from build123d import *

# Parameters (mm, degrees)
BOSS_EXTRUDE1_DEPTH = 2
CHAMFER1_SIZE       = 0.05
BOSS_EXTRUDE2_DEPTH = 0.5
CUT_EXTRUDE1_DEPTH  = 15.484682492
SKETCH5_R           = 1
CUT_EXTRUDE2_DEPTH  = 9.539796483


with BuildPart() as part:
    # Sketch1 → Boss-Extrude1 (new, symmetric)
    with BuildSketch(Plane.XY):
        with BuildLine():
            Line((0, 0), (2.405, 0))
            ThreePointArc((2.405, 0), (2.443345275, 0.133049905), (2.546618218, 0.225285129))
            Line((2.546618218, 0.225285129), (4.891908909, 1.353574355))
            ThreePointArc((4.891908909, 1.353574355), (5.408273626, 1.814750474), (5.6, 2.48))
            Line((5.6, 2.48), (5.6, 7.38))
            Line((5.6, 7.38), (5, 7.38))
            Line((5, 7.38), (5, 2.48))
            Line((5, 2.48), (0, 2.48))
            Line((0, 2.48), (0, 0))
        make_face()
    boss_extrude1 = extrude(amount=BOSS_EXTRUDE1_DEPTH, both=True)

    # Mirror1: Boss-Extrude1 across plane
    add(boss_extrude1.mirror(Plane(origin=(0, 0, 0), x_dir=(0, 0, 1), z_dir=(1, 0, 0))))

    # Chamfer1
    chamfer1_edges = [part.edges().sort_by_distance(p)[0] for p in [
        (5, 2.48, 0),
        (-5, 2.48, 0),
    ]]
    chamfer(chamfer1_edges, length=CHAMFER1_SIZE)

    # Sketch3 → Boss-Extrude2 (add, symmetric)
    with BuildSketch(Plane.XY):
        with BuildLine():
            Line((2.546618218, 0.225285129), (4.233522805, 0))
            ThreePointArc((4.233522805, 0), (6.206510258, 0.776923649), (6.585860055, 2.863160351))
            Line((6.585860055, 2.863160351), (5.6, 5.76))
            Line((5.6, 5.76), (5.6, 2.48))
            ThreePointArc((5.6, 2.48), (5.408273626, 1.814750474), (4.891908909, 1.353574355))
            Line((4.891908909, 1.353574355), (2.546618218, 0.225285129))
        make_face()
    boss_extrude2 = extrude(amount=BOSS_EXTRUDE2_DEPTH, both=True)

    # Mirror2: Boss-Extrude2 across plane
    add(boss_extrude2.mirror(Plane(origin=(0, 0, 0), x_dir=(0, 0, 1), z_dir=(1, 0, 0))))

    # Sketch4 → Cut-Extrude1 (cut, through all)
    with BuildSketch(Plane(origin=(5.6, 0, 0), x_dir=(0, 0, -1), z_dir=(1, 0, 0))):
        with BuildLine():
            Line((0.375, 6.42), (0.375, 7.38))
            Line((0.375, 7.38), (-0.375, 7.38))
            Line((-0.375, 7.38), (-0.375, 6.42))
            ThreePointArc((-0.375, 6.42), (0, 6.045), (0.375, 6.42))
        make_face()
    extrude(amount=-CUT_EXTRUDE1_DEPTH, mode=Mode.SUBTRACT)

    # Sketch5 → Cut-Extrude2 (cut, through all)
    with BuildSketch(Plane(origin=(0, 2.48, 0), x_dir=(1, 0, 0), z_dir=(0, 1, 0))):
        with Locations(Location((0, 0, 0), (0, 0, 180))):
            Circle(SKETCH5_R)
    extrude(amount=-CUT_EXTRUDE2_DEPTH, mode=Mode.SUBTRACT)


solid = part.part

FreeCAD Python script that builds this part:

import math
import FreeCAD as App
import Part
import Sketcher
from FreeCAD import Vector


def edges_at(feature, points):
    """Names of the edges that pass closest to the given points."""
    edges = feature.Shape.Edges
    near = lambda p: min(range(len(edges)), key=lambda i: edges[i].distToShape(Part.Vertex(*p))[0])
    return sorted({f"Edge{near(p) + 1}" for p in points})

doc = App.newDocument("Part")
params = doc.addObject("Spreadsheet::Sheet", "Params")
for row, (alias, value) in enumerate([
    ("sketch1_width", "5 mm"),
    ("sketch1_radius", "0.25 mm"),
    ("sketch1_radius2", "1.25 mm"),
    ("sketch1_width2", "0.6 mm"),
    ("sketch1_height", "4.9 mm"),
    ("pad1_length", "4 mm"),
    ("chamfer_size", "0.05 mm"),
    ("sketch2_radius", "2.18 mm"),
    ("sketch2_radius2", "1.25 mm"),
    ("sketch2_height", "3.28 mm"),
    ("sketch2_length", "3.06 mm"),
    ("pad2_length", "1 mm"),
    ("sketch3_width", "0.96 mm"),
    ("sketch4_diameter", "2 mm"),
], start=1):
    params.set(f"A{row}", alias)
    params.set(f"B{row}", "=" + value)
    params.setAlias(f"B{row}", alias)

body = doc.addObject("PartDesign::Body", "Body")

sketch1 = body.newObject("Sketcher::SketchObject", "Sketch")
sketch1.AttachmentSupport = (doc.getObject("XY_Plane"), [""])
sketch1.MapMode = "FlatFace"
sketch1.addGeometry([
    Part.LineSegment(Vector(0, 0, 0), Vector(2.405, 0, 0)),
    Part.ArcOfCircle(Part.Circle(Vector(2.655, 0, 0), Vector(0, 0, 1), 0.25), math.radians(115.69161), math.radians(180)),
    Part.LineSegment(Vector(2.546618, 0.225285, 0), Vector(4.891909, 1.353574, 0)),
    Part.ArcOfCircle(Part.Circle(Vector(4.35, 2.48, 0), Vector(0, 0, 1), 1.25), math.radians(-64.30839), math.radians(0)),
    Part.LineSegment(Vector(5.6, 2.48, 0), Vector(5.6, 7.38, 0)),
    Part.LineSegment(Vector(5.6, 7.38, 0), Vector(5, 7.38, 0)),
    Part.LineSegment(Vector(5, 7.38, 0), Vector(5, 2.48, 0)),
    Part.LineSegment(Vector(5, 2.48, 0), Vector(0, 2.48, 0)),
    Part.LineSegment(Vector(0, 2.48, 0), Vector(0, 0, 0)),
], False)
sketch1.addConstraint([
    Sketcher.Constraint("Coincident", 0, 2, 1, 2),
    Sketcher.Constraint("Tangent", 1, 1, 2, 1),
    Sketcher.Constraint("Tangent", 2, 2, 3, 1),
    Sketcher.Constraint("Tangent", 3, 2, 4, 1),
    Sketcher.Constraint("Coincident", 4, 2, 5, 1),
    Sketcher.Constraint("Coincident", 5, 2, 6, 1),
    Sketcher.Constraint("Coincident", 6, 2, 7, 1),
    Sketcher.Constraint("Coincident", 7, 2, 8, 1),
    Sketcher.Constraint("Coincident", 8, 2, 0, 1),
    Sketcher.Constraint("Horizontal", 0),
    Sketcher.Constraint("Vertical", 4),
    Sketcher.Constraint("Horizontal", 5),
    Sketcher.Constraint("Vertical", 6),
    Sketcher.Constraint("Horizontal", 7),
    Sketcher.Constraint("Vertical", 8),
    Sketcher.Constraint("Coincident", 8, 2, -1, 1),
    Sketcher.Constraint("PointOnObject", 1, 3, -1),
    Sketcher.Constraint("Horizontal", 3, 2, 6, 2),
    Sketcher.Constraint("DistanceX", 7, 2, 7, 1, 5.0),
    Sketcher.Constraint("Radius", 1, 0.25),
    Sketcher.Constraint("Radius", 3, 1.25),
    Sketcher.Constraint("DistanceX", 5, 2, 5, 1, 0.6),
    Sketcher.Constraint("DistanceY", 4, 1, 4, 2, 4.9),
    Sketcher.Constraint("DistanceY", 8, 2, 8, 1, 2.48),
    Sketcher.Constraint("DistanceX", 0, 1, 0, 2, 2.405),
])
sketch1.setExpression("Constraints[18]", "Params.sketch1_width")
sketch1.setExpression("Constraints[19]", "Params.sketch1_radius")
sketch1.setExpression("Constraints[20]", "Params.sketch1_radius2")
sketch1.setExpression("Constraints[21]", "Params.sketch1_width2")
sketch1.setExpression("Constraints[22]", "Params.sketch1_height")
pad1 = body.newObject("PartDesign::Pad", "Pad")
pad1.Profile = sketch1
pad1.setExpression("Length", "Params.pad1_length")
pad1.Midplane = True
doc.recompute()

mirrored = body.newObject("PartDesign::Mirrored", "Mirrored")
mirrored.Originals = [pad1]
mirrored.MirrorPlane = (doc.getObject("YZ_Plane"), [""])
body.Tip = mirrored
doc.recompute()

chamfer = body.newObject("PartDesign::Chamfer", "Chamfer")
chamfer.Base = (mirrored, edges_at(mirrored, [(5, 2.48, 0), (-5, 2.48, 0)]))
chamfer.setExpression("Size", "Params.chamfer_size")

sketch2 = body.newObject("Sketcher::SketchObject", "Sketch001")
sketch2.AttachmentSupport = (doc.getObject("XY_Plane"), [""])
sketch2.MapMode = "FlatFace"
sketch2.addGeometry([
    Part.LineSegment(Vector(2.546618, 0.225285, 0), Vector(4.233523, 0, 0)),
    Part.ArcOfCircle(Part.Circle(Vector(4.522098, 2.160816, 0), Vector(0, 0, 1), 2.18), math.radians(-97.606808), math.radians(18.794601)),
    Part.LineSegment(Vector(6.58586, 2.86316, 0), Vector(5.6, 5.76, 0)),
    Part.LineSegment(Vector(5.6, 5.76, 0), Vector(5.6, 2.48, 0)),
    Part.ArcOfCircle(Part.Circle(Vector(4.35, 2.48, 0), Vector(0, 0, 1), 1.25), math.radians(-64.30839), math.radians(0)),
    Part.LineSegment(Vector(4.891909, 1.353574, 0), Vector(2.546618, 0.225285, 0)),
], False)
sketch2.addConstraint([
    Sketcher.Constraint("Tangent", 0, 2, 1, 1),
    Sketcher.Constraint("Tangent", 1, 2, 2, 1),
    Sketcher.Constraint("Coincident", 2, 2, 3, 1),
    Sketcher.Constraint("Tangent", 3, 2, 4, 2),
    Sketcher.Constraint("Tangent", 4, 1, 5, 1),
    Sketcher.Constraint("Coincident", 5, 2, 0, 1),
    Sketcher.Constraint("Vertical", 3),
    Sketcher.Constraint("PointOnObject", 0, 2, -1),
    Sketcher.Constraint("Radius", 1, 2.18),
    Sketcher.Constraint("Radius", 4, 1.25),
    Sketcher.Constraint("DistanceY", 3, 2, 3, 1, 3.28),
    Sketcher.Constraint("DistanceX", -1, 1, 2, 2, 5.6),
    Sketcher.Constraint("Distance", 2, 3.06),
    Sketcher.Constraint("DistanceY", -1, 1, 4, 3, 2.48),
    Sketcher.Constraint("DistanceX", -1, 1, 1, 3, 4.522098),
    Sketcher.Constraint("Distance", 0, 1.701881),
])
sketch2.setExpression("Constraints[8]", "Params.sketch2_radius")
sketch2.setExpression("Constraints[9]", "Params.sketch2_radius2")
sketch2.setExpression("Constraints[10]", "Params.sketch2_height")
sketch2.setExpression("Constraints[12]", "Params.sketch2_length")
pad2 = body.newObject("PartDesign::Pad", "Pad001")
pad2.Profile = sketch2
pad2.setExpression("Length", "Params.pad2_length")
pad2.Midplane = True
doc.recompute()

mirrored2 = body.newObject("PartDesign::Mirrored", "Mirrored001")
mirrored2.Originals = [pad2]
mirrored2.MirrorPlane = (doc.getObject("YZ_Plane"), [""])
body.Tip = mirrored2

sketch3 = body.newObject("Sketcher::SketchObject", "Sketch002")
sketch3.AttachmentSupport = (doc.getObject("YZ_Plane"), [""])
sketch3.MapMode = "FlatFace"
sketch3.AttachmentOffset = App.Placement(Vector(0, 0, 5.6), App.Rotation())
sketch3.addGeometry([
    Part.LineSegment(Vector(6.42, -0.375, 0), Vector(7.38, -0.375, 0)),
    Part.LineSegment(Vector(7.38, -0.375, 0), Vector(7.38, 0.375, 0)),
    Part.LineSegment(Vector(7.38, 0.375, 0), Vector(6.42, 0.375, 0)),
    Part.ArcOfCircle(Part.Circle(Vector(6.42, 0, 0), Vector(0, 0, 1), 0.375), math.radians(90), math.radians(270)),
], False)
sketch3.addConstraint([
    Sketcher.Constraint("Coincident", 0, 2, 1, 1),
    Sketcher.Constraint("Coincident", 1, 2, 2, 1),
    Sketcher.Constraint("Tangent", 2, 2, 3, 1),
    Sketcher.Constraint("Tangent", 3, 2, 0, 1),
    Sketcher.Constraint("Horizontal", 0),
    Sketcher.Constraint("Vertical", 1),
    Sketcher.Constraint("Horizontal", 2),
    Sketcher.Constraint("PointOnObject", 3, 3, -1),
    Sketcher.Constraint("Radius", 3, 0.375),
    Sketcher.Constraint("DistanceX", 0, 1, 0, 2, 0.96),
    Sketcher.Constraint("DistanceX", -1, 1, 3, 3, 6.42),
])
sketch3.setExpression("Constraints[9]", "Params.sketch3_width")
pocket1 = body.newObject("PartDesign::Pocket", "Pocket")
pocket1.Profile = sketch3
pocket1.Type = "ThroughAll"

sketch4 = body.newObject("Sketcher::SketchObject", "Sketch003")
sketch4.AttachmentSupport = (doc.getObject("XZ_Plane"), [""])
sketch4.MapMode = "FlatFace"
sketch4.AttachmentOffset = App.Placement(Vector(0, 0, -2.48), App.Rotation())
sketch4.addGeometry(Part.Circle(Vector(0, 0, 0), Vector(0, 0, 1), 1), False)
sketch4.addConstraint([
    Sketcher.Constraint("Coincident", 0, 3, -1, 1),
    Sketcher.Constraint("Diameter", 0, 2.0),
])
sketch4.setExpression("Constraints[1]", "Params.sketch4_diameter")
pocket2 = body.newObject("PartDesign::Pocket", "Pocket001")
pocket2.Profile = sketch4
pocket2.Type = "ThroughAll"
pocket2.Reversed = True

doc.recompute()
